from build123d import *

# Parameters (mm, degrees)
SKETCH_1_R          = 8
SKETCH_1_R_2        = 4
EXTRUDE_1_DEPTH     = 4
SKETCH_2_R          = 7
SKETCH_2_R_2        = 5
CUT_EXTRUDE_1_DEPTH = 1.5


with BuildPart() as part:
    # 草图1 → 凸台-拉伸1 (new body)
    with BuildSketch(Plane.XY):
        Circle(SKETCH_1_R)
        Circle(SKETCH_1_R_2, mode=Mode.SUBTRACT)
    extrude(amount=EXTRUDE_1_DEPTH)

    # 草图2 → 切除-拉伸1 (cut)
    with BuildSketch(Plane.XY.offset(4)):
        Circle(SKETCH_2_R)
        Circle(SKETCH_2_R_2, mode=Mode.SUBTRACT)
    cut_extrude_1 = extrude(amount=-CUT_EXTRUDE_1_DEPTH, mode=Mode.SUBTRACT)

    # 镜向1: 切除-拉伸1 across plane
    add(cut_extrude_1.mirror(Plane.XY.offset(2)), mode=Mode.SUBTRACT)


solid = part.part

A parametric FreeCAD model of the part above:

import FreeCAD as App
import Part
import Sketcher
from FreeCAD import Vector
Q = App.Units.Quantity

doc = App.newDocument("Part")
body = doc.addObject("PartDesign::Body", "Body")

# Sketch on XY plane
sketch1 = doc.addObject("Sketcher::SketchObject", "Sketch")
body.addObject(sketch1)
sketch1.AttachmentSupport = (doc.XY_Plane, [""])
sketch1.MapMode = "FlatFace"
sketch1.addGeometry([
    Part.Circle(Vector(0, 0, 0), Vector(0, 0, 1), 8),
    Part.Circle(Vector(0, 0, 0), Vector(0, 0, 1), 4),
], False)
sketch1.addConstraint([
    Sketcher.Constraint("Coincident", 0, 3, -1, 1),
    Sketcher.Constraint("Coincident", 1, 3, -1, 1),
    Sketcher.Constraint("Diameter", 0, Q("16 mm")),
    Sketcher.Constraint("Diameter", 1, Q("8 mm")),
])
pad1 = doc.addObject("PartDesign::Pad", "Pad")
body.addObject(pad1)
pad1.Profile = sketch1
pad1.Length = 4

# Sketch on XY plane
sketch2 = doc.addObject("Sketcher::SketchObject", "Sketch001")
body.addObject(sketch2)
sketch2.AttachmentSupport = (doc.XY_Plane, [""])
sketch2.MapMode = "FlatFace"
sketch2.AttachmentOffset = App.Placement(Vector(0, 0, 4), App.Rotation())
sketch2.addGeometry([
    Part.Circle(Vector(0, 0, 0), Vector(0, 0, 1), 7),
    Part.Circle(Vector(0, 0, 0), Vector(0, 0, 1), 5),
], False)
sketch2.addConstraint([
    Sketcher.Constraint("Coincident", 0, 3, -1, 1),
    Sketcher.Constraint("Coincident", 1, 3, -1, 1),
    Sketcher.Constraint("Diameter", 0, Q("14 mm")),
    Sketcher.Constraint("Diameter", 1, Q("10 mm")),
])
pocket1 = doc.addObject("PartDesign::Pocket", "Pocket")
body.addObject(pocket1)
pocket1.Profile = sketch2
pocket1.Length = 1.5
doc.recompute()

datumplane = doc.addObject("PartDesign::Plane", "DatumPlane")
body.addObject(datumplane)
datumplane.AttachmentSupport = (doc.XY_Plane, [""])
datumplane.MapMode = "FlatFace"
datumplane.AttachmentOffset = App.Placement(Vector(0, 0, 2), App.Rotation())
mirrored = doc.addObject("PartDesign::Mirrored", "Mirrored")
body.addObject(mirrored)
mirrored.Originals = [pocket1]
mirrored.MirrorPlane = (datumplane, [""])
body.Tip = mirrored

doc.recompute()
